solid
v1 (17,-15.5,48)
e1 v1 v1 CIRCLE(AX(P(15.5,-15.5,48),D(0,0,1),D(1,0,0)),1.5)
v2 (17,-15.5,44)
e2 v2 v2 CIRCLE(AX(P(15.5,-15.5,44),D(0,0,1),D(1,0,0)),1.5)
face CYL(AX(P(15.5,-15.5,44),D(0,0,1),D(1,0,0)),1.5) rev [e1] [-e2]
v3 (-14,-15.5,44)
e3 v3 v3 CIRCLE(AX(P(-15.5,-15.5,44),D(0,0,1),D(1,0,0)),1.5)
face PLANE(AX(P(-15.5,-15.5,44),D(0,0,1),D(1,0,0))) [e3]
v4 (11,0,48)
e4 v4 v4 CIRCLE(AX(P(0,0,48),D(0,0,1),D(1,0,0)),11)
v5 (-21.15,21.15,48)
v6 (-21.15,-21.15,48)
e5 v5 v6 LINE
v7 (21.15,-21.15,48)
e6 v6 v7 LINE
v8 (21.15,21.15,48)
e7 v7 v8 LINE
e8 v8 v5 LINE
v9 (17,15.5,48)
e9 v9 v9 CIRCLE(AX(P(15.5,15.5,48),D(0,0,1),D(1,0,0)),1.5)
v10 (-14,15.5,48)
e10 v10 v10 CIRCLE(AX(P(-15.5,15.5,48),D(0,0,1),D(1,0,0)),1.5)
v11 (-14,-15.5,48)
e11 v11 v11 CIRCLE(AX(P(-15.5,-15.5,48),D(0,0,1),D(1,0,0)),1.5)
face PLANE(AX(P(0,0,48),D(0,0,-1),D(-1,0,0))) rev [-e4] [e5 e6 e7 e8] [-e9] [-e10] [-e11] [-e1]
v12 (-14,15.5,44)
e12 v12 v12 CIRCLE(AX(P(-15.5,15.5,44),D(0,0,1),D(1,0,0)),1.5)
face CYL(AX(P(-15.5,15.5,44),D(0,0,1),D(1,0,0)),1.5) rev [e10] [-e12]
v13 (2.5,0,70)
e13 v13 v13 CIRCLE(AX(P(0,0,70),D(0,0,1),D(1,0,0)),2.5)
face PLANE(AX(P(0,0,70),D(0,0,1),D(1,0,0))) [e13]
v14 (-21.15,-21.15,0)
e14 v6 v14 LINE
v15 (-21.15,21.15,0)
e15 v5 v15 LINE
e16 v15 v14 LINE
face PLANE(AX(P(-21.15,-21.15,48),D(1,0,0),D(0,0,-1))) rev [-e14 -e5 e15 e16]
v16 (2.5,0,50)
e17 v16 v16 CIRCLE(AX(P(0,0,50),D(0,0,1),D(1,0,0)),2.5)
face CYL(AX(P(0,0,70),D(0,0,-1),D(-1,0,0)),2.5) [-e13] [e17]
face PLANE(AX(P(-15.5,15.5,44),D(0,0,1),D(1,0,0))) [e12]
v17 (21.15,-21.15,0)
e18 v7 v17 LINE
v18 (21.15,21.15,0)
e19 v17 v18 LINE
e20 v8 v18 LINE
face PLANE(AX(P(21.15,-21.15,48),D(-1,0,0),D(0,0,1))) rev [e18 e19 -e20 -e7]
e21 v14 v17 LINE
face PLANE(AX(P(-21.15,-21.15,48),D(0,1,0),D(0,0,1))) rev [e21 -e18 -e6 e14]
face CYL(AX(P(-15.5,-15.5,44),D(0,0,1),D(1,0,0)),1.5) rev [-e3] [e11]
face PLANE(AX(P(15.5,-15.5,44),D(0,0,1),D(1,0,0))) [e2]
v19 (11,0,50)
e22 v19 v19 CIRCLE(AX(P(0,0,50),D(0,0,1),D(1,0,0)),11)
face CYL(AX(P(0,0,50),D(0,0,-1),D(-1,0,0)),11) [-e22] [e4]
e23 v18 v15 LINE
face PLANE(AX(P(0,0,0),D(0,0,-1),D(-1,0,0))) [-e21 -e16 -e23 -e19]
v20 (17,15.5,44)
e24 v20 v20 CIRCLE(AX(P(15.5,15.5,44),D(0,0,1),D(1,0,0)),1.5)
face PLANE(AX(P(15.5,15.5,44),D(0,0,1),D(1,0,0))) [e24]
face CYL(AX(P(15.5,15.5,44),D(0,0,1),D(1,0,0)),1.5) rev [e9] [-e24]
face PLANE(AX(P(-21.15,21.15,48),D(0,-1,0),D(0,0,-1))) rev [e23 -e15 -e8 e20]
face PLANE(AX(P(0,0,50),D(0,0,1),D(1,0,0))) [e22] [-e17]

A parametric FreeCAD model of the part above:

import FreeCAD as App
import Part
import Sketcher
Q = App.Units.Quantity


def add_polygon(sketch, points):
    """Adds a closed chain of lines whose ends are joined by coincident constraints."""
    first, n = sketch.GeometryCount, len(points)
    for a, b in zip(points, points[1:] + points[:1]):
        sketch.addGeometry(Part.LineSegment(App.Vector(*a, 0), App.Vector(*b, 0)), False)
    for i in range(n):
        sketch.addConstraint(Sketcher.Constraint("Coincident", first + i, 2, first + (i + 1) % n, 1))

doc = App.newDocument("Part")
params = doc.addObject("Spreadsheet::Sheet", "Params")
for row, (alias, value) in enumerate([
    ("sketch1_width", "42.3 mm"),
    ("pad1_length", "48 mm"),
    ("sketch2_diameter", "22 mm"),
    ("pad2_length", "2 mm"),
    ("sketch3_diameter", "5 mm"),
    ("pad3_length", "20 mm"),
    ("sketch4_diameter", "3 mm"),
    ("pocket1_length", "4 mm"),
], start=1):
    params.set(f"A{row}", alias)
    params.set(f"B{row}", "=" + value)
    params.setAlias(f"B{row}", alias)

body = doc.addObject("PartDesign::Body", "Body")

sketch1 = body.newObject("Sketcher::SketchObject", "Sketch")
sketch1.AttachmentSupport = (doc.getObject("XY_Plane"), [""])
sketch1.MapMode = "FlatFace"
add_polygon(sketch1, [(-21.15, 21.15), (-21.15, -21.15), (21.15, -21.15), (21.15, 21.15)])
sketch1.addConstraint([
    Sketcher.Constraint("Vertical", 0),
    Sketcher.Constraint("Horizontal", 1),
    Sketcher.Constraint("Vertical", 2),
    Sketcher.Constraint("Horizontal", 3),
    Sketcher.Constraint("Symmetric", 0, 2, 2, 2, -1, 1),
    Sketcher.Constraint("Equal", 3, 0),
    Sketcher.Constraint("DistanceX", 1, 1, 1, 2, Q("42.3 mm")),
])
sketch1.setExpression("Constraints[10]", "Params.sketch1_width")
pad1 = body.newObject("PartDesign::Pad", "Pad")
pad1.Profile = sketch1
pad1.setExpression("Length", "Params.pad1_length")

sketch2 = body.newObject("Sketcher::SketchObject", "Sketch001")
sketch2.AttachmentSupport = (doc.getObject("XY_Plane"), [""])
sketch2.MapMode = "FlatFace"
sketch2.AttachmentOffset = App.Placement(App.Vector(0, 0, 48), App.Rotation())
sketch2.addGeometry(Part.Circle(App.Vector(0, 0, 0), App.Vector(0, 0, 1), 11), False)
sketch2.addConstraint([
    Sketcher.Constraint("Coincident", 0, 3, -1, 1),
    Sketcher.Constraint("Diameter", 0, Q("22 mm")),
])
sketch2.setExpression("Constraints[1]", "Params.sketch2_diameter")
pad2 = body.newObject("PartDesign::Pad", "Pad001")
pad2.Profile = sketch2
pad2.setExpression("Length", "Params.pad2_length")

sketch3 = body.newObject("Sketcher::SketchObject", "Sketch002")
sketch3.AttachmentSupport = (doc.getObject("XY_Plane"), [""])
sketch3.MapMode = "FlatFace"
sketch3.AttachmentOffset = App.Placement(App.Vector(0, 0, 50), App.Rotation())
sketch3.addGeometry(Part.Circle(App.Vector(0, 0, 0), App.Vector(0, 0, 1), 2.5), False)
sketch3.addConstraint([
    Sketcher.Constraint("Coincident", 0, 3, -1, 1),
    Sketcher.Constraint("Diameter", 0, Q("5 mm")),
])
sketch3.setExpression("Constraints[1]", "Params.sketch3_diameter")
pad3 = body.newObject("PartDesign::Pad", "Pad002")
pad3.Profile = sketch3
pad3.setExpression("Length", "Params.pad3_length")

sketch4 = body.newObject("Sketcher::SketchObject", "Sketch003")
sketch4.AttachmentSupport = (doc.getObject("XY_Plane"), [""])
sketch4.MapMode = "FlatFace"
sketch4.AttachmentOffset = App.Placement(App.Vector(0, 0, 48), App.Rotation())
sketch4.addGeometry([
    Part.Circle(App.Vector(-15.5, 15.5, 0), App.Vector(0, 0, 1), 1.5),
    Part.Circle(App.Vector(15.5, 15.5, 0), App.Vector(0, 0, 1), 1.5),
    Part.Circle(App.Vector(15.5, -15.5, 0), App.Vector(0, 0, 1), 1.5),
    Part.Circle(App.Vector(-15.5, -15.5, 0), App.Vector(0, 0, 1), 1.5),
], False)
sketch4.addConstraint([
    Sketcher.Constraint("Equal", 0, 1),
    Sketcher.Constraint("Equal", 1, 2),
    Sketcher.Constraint("Equal", 2, 3),
    Sketcher.Constraint("Symmetric", 0, 3, 2, 3, -1, 1),
    Sketcher.Constraint("Symmetric", 1, 3, 3, 3, -1, 1),
    Sketcher.Constraint("Symmetric", 0, 3, 1, 3, -2),
    Sketcher.Constraint("Diameter", 0, Q("3 mm")),
    Sketcher.Constraint("DistanceX", 0, 3, 1, 3, Q("31 mm")),
    Sketcher.Constraint("DistanceY", 2, 3, 1, 3, Q("31 mm")),
])
sketch4.setExpression("Constraints[6]", "Params.sketch4_diameter")
pocket1 = body.newObject("PartDesign::Pocket", "Pocket")
pocket1.Profile = sketch4
pocket1.setExpression("Length", "Params.pocket1_length")

doc.recompute()
